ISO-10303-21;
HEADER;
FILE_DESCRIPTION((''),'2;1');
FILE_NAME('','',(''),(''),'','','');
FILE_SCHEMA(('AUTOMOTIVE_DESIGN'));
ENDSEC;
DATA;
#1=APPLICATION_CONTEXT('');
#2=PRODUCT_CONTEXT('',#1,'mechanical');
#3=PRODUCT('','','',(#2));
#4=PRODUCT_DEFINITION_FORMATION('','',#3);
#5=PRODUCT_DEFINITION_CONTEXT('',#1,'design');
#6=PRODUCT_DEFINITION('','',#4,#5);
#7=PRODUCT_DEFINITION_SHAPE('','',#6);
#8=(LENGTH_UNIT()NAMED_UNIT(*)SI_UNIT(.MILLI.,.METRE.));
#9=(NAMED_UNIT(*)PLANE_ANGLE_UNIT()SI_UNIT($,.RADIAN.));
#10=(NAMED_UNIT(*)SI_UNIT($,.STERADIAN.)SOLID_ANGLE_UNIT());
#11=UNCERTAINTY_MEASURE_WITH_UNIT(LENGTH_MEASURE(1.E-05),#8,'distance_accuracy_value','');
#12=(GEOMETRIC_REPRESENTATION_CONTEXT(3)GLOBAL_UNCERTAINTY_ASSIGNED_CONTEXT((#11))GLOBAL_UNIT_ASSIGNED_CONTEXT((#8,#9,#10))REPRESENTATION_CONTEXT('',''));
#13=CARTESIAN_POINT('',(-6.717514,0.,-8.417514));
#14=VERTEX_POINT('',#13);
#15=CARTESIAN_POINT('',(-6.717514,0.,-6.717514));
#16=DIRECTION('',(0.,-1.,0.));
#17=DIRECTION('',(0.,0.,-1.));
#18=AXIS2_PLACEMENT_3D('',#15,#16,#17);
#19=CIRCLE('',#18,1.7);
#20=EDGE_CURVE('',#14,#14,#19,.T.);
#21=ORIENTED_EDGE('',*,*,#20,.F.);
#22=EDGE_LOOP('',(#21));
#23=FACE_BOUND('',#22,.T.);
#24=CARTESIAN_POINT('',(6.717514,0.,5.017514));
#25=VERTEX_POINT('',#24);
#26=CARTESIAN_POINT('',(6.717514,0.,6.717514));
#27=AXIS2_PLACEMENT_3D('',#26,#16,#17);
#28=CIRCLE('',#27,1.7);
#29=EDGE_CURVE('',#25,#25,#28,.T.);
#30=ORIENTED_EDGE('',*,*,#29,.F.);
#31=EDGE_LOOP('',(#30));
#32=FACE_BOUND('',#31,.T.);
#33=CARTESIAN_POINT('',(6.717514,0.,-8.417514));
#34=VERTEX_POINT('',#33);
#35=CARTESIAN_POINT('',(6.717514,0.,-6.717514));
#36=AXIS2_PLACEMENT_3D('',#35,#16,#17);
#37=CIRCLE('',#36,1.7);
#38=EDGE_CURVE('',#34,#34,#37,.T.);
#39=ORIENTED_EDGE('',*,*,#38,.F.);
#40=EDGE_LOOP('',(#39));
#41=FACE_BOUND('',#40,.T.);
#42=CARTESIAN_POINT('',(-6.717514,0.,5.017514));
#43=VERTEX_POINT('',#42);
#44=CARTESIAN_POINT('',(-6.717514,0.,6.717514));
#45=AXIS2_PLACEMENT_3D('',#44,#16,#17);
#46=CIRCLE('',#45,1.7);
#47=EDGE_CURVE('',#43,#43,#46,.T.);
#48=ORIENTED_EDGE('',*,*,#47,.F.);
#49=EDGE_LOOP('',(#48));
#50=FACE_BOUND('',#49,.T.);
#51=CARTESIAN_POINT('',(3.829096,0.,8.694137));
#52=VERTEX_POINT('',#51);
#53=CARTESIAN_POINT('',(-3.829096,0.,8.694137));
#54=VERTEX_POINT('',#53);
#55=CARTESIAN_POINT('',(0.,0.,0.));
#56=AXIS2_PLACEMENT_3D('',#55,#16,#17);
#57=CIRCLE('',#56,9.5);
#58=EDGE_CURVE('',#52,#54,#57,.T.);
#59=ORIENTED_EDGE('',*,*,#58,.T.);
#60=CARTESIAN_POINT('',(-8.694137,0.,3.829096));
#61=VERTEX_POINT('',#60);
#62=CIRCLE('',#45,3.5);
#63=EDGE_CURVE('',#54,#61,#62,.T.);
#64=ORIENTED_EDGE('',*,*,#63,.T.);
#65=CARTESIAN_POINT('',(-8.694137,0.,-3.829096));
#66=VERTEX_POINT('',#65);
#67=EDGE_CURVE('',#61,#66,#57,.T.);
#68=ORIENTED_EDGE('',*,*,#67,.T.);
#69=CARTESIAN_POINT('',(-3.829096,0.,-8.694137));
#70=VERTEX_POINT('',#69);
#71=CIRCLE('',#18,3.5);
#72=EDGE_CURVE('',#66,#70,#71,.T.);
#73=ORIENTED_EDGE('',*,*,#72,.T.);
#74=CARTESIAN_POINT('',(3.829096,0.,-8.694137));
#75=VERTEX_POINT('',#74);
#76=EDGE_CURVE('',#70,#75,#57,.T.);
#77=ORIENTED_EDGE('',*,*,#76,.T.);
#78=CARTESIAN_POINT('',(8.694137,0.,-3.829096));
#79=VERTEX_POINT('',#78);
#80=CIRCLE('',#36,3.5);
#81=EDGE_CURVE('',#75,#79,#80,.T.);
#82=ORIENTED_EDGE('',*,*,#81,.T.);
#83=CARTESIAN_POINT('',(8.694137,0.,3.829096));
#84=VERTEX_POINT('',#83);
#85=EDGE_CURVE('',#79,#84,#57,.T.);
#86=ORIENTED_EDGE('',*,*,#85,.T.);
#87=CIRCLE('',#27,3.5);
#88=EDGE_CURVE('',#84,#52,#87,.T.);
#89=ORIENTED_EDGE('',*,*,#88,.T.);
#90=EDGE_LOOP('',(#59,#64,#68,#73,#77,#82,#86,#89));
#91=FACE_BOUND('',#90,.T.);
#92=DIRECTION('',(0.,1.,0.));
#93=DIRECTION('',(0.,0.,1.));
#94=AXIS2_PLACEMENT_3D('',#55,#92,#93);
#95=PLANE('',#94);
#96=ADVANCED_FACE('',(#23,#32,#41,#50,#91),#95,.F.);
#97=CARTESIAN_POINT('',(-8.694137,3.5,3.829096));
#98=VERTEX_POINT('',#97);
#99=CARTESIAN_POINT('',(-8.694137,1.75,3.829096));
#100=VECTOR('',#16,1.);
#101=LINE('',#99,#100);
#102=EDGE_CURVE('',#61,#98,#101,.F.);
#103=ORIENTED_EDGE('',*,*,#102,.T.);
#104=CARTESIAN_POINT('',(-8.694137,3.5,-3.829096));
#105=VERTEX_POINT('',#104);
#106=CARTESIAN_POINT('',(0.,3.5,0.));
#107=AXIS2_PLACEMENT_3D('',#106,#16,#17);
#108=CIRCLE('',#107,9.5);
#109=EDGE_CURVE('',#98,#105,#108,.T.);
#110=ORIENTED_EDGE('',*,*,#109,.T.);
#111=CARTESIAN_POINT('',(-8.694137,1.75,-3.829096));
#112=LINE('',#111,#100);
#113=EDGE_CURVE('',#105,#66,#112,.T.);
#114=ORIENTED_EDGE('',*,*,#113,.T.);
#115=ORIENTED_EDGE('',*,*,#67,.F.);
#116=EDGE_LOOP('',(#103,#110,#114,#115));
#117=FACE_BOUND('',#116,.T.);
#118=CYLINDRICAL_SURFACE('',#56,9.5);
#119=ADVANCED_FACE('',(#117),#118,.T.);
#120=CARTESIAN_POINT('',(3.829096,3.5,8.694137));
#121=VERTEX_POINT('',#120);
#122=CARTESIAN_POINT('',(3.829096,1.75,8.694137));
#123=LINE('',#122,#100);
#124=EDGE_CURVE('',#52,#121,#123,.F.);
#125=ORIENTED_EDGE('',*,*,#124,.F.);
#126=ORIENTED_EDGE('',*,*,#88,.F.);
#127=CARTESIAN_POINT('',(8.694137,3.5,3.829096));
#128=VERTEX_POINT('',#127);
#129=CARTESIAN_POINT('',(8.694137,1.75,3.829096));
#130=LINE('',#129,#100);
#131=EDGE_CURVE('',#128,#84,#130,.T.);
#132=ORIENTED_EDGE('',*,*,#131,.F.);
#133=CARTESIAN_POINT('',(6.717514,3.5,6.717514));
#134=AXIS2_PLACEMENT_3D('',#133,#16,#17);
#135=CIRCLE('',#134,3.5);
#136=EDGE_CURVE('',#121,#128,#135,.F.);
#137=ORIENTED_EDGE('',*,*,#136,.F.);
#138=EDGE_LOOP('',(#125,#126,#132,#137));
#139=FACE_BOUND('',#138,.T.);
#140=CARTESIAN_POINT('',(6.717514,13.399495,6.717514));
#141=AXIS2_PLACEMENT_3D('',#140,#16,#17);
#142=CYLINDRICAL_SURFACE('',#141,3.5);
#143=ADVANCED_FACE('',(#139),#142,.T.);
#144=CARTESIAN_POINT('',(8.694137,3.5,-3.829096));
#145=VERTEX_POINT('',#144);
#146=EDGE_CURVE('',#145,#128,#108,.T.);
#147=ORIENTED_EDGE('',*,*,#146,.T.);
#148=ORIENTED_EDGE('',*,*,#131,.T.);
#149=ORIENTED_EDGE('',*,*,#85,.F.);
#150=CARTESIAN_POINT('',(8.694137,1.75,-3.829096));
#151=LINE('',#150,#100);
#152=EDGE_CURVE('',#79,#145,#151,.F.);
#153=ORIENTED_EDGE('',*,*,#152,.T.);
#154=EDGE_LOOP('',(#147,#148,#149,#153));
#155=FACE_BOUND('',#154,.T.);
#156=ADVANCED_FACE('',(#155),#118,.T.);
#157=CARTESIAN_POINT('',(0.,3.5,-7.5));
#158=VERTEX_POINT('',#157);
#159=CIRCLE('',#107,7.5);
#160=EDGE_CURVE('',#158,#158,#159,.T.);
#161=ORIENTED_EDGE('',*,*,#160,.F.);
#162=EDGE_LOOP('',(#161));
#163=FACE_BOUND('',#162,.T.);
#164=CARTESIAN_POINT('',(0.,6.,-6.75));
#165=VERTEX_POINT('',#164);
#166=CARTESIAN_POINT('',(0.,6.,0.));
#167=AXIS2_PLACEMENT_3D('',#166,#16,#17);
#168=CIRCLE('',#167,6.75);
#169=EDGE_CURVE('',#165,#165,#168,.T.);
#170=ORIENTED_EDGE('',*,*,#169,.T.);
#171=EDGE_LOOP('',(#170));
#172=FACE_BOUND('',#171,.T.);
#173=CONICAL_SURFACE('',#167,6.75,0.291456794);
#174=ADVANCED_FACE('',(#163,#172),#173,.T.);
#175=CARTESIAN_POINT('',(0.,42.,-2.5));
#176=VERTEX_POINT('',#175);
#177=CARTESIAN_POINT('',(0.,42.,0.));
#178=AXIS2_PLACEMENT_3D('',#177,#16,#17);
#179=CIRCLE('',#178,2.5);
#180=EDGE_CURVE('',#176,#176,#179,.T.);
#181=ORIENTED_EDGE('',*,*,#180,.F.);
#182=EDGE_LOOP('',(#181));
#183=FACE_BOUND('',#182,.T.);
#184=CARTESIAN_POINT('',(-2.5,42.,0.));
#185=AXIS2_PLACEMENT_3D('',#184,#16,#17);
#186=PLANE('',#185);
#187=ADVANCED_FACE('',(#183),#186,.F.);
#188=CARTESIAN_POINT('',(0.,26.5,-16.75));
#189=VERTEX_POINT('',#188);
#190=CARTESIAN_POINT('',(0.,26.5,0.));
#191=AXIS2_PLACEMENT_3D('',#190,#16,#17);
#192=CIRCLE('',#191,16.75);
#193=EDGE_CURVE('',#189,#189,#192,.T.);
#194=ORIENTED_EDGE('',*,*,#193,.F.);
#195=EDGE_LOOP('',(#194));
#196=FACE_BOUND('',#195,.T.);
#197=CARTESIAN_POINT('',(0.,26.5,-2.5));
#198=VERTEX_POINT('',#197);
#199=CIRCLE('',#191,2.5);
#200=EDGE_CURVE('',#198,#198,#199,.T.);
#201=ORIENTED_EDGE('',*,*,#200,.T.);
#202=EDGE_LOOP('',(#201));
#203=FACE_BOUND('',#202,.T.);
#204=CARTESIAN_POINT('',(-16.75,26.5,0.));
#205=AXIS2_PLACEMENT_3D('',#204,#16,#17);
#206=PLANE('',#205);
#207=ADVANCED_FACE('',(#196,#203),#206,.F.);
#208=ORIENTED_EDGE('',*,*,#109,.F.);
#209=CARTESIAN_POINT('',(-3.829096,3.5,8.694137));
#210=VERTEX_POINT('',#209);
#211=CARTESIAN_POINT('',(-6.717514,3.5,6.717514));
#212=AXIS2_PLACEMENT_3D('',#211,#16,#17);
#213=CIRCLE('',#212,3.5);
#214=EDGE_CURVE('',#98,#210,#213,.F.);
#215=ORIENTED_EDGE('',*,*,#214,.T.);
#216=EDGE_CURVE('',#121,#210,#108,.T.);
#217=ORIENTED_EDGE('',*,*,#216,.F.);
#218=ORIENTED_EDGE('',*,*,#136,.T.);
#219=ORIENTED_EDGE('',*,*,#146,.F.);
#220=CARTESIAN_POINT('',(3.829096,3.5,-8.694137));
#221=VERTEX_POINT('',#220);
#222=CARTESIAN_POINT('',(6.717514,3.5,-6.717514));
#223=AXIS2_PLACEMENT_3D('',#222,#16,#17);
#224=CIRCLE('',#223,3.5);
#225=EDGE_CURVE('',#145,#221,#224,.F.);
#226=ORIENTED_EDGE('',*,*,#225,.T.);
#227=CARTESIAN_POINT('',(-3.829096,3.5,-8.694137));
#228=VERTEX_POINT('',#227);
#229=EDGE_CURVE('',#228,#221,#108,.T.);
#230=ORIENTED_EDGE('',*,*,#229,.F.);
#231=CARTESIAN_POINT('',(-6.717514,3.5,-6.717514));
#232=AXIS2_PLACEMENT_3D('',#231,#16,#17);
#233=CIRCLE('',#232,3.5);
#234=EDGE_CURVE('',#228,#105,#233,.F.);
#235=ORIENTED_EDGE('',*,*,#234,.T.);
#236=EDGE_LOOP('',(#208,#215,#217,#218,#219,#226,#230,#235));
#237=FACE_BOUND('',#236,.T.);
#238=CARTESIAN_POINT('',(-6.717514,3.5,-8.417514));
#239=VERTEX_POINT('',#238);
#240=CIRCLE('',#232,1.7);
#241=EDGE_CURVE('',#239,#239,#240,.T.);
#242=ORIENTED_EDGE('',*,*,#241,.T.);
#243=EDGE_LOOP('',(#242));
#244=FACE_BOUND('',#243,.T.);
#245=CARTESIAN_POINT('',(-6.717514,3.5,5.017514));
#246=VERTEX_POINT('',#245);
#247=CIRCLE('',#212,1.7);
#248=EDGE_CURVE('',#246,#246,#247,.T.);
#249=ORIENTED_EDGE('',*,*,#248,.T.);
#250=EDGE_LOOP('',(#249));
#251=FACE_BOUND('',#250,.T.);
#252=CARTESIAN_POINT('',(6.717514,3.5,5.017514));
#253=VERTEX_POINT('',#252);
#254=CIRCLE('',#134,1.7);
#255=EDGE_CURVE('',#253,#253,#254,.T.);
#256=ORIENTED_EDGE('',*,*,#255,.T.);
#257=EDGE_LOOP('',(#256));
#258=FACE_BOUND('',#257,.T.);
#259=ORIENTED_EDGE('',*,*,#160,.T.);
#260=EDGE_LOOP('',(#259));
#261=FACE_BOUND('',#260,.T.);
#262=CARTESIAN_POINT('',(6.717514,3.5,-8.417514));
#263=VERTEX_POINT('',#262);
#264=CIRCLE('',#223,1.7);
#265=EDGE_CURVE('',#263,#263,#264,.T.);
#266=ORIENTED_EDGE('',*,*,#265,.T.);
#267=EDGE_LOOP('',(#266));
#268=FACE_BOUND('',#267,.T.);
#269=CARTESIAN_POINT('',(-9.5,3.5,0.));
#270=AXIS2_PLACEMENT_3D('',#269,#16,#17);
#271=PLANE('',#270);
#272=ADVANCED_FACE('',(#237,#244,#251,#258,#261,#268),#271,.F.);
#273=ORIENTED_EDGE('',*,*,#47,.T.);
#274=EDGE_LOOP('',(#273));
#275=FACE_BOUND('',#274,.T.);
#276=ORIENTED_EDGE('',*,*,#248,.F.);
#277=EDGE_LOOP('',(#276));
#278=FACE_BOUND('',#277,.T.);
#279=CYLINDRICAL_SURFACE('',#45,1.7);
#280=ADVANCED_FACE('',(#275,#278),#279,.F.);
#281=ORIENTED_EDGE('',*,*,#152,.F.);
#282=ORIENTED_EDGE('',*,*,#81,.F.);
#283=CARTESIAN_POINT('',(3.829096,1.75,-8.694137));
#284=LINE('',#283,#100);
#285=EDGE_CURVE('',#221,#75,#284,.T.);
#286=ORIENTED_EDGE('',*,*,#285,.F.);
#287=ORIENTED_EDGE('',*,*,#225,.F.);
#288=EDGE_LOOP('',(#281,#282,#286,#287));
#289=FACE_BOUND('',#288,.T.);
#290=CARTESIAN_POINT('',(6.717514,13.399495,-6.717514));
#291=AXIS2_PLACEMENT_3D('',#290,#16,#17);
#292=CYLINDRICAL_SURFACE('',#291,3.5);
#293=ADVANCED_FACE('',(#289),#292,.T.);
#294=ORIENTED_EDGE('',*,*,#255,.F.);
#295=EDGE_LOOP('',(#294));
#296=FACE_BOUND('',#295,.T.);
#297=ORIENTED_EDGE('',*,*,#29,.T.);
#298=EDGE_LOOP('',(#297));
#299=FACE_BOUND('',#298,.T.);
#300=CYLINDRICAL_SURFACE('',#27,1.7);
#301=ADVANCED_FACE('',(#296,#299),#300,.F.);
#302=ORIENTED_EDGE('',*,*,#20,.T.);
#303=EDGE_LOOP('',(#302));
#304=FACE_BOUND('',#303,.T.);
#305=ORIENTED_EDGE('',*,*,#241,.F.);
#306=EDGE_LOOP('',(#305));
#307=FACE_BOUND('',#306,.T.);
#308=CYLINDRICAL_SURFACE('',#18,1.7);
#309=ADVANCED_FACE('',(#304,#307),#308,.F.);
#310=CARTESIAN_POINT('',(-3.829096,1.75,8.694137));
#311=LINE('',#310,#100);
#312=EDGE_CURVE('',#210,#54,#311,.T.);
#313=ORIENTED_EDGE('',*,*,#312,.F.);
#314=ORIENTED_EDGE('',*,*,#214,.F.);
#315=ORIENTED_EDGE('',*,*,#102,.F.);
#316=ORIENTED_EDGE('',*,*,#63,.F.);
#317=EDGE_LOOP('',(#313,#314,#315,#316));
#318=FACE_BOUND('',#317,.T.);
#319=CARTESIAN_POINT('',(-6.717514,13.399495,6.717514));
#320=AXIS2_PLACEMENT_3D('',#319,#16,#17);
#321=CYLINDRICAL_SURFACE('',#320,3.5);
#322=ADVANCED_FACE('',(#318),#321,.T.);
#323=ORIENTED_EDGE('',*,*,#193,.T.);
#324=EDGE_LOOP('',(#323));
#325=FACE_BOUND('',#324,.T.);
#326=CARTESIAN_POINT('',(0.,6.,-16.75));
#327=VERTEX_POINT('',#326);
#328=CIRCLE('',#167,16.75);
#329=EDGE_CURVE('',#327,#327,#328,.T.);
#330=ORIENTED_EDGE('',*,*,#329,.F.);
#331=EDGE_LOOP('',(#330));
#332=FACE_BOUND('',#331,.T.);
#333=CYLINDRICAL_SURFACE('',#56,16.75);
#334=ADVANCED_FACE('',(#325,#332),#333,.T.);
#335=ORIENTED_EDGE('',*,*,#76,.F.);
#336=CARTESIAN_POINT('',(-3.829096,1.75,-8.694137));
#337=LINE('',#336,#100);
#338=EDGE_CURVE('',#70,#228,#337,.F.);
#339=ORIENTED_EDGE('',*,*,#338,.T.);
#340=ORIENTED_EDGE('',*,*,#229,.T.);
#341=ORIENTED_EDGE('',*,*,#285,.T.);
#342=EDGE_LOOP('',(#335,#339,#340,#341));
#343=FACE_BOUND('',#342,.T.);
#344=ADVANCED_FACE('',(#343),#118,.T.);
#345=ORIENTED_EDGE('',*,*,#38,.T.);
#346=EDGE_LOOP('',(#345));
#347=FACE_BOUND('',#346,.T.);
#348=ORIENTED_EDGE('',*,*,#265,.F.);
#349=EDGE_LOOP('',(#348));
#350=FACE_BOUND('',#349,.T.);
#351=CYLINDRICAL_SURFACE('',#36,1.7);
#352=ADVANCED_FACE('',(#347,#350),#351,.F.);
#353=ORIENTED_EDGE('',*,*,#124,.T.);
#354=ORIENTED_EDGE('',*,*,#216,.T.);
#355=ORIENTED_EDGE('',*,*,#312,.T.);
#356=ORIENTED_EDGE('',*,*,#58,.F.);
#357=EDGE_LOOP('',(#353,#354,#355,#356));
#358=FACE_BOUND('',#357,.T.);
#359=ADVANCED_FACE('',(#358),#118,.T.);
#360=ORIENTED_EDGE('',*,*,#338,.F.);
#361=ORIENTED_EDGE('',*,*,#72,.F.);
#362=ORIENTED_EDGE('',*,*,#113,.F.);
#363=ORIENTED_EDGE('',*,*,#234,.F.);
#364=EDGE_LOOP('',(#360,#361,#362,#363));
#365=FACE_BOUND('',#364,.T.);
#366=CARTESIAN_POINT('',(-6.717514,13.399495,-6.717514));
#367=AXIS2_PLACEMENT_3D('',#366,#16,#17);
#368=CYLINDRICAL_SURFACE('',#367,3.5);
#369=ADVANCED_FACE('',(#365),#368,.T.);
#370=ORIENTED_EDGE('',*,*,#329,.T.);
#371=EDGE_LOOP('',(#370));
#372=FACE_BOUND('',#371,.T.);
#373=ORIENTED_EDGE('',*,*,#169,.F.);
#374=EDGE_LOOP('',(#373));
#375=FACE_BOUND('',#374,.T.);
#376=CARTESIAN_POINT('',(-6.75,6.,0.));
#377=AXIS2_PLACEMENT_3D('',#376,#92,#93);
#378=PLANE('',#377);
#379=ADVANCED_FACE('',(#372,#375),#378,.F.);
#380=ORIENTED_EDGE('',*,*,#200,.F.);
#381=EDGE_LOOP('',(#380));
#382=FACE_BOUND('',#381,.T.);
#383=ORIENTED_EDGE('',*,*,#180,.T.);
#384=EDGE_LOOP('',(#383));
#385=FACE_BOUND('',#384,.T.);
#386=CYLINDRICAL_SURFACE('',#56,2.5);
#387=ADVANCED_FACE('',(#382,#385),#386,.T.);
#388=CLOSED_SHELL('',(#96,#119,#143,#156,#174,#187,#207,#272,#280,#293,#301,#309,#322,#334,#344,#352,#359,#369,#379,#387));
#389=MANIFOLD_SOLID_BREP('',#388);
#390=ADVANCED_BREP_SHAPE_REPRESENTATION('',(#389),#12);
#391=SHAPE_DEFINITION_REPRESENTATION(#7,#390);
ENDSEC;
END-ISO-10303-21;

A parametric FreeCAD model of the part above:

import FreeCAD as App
import Part
import Sketcher

doc = App.newDocument("Part")
params = doc.addObject("Spreadsheet::Sheet", "Params")
for row, (alias, value) in enumerate([
    ("sketch1_width", "10 mm"),
    ("sketch1_width2", "2 mm"),
    ("sketch1_height", "42 mm"),
    ("sketch1_width3", "9.5 mm"),
    ("sketch1_width4", "2.5 mm"),
    ("revolution_angle", "360 deg"),
    ("sketch2_diameter", "7 mm"),
    ("pad1_length", "3.5 mm"),
    ("sketch3_diameter", "3.4 mm"),
    ("hole_diameter", "3.4 mm"),
    ("hole_depth", "3.5 mm"),
], start=1):
    params.set(f"A{row}", alias)
    params.set(f"B{row}", "=" + value)
    params.setAlias(f"B{row}", alias)

body = doc.addObject("PartDesign::Body", "Body")

# Sketch on XY plane
sketch1 = body.newObject("Sketcher::SketchObject", "Sketch")
sketch1.AttachmentSupport = (doc.getObject("XY_Plane"), [""])
sketch1.MapMode = "FlatFace"
sketch1.addGeometry([
    Part.LineSegment(App.Vector(-9.5, 0, 0), App.Vector(0, 0, 0)),  # 0
    Part.LineSegment(App.Vector(0, 0, 0), App.Vector(0, 42, 0)),  # 1
    Part.LineSegment(App.Vector(0, 42, 0), App.Vector(-2.5, 42, 0)),  # 2
    Part.LineSegment(App.Vector(-2.5, 42, 0), App.Vector(-2.5, 26.5, 0)),  # 3
    Part.LineSegment(App.Vector(-2.5, 26.5, 0), App.Vector(-16.8, 26.5, 0)),  # 4
    Part.LineSegment(App.Vector(-16.8, 26.5, 0), App.Vector(-16.8, 6, 0)),  # 5
    Part.LineSegment(App.Vector(-16.8, 6, 0), App.Vector(-6.8, 6, 0)),  # 6
    Part.LineSegment(App.Vector(-6.8, 6, 0), App.Vector(-7.5, 3.5, 0)),  # 7
    Part.LineSegment(App.Vector(-7.5, 3.5, 0), App.Vector(-9.5, 3.5, 0)),  # 8
    Part.LineSegment(App.Vector(-9.5, 3.5, 0), App.Vector(-9.5, 0, 0)),  # 9
], False)
sketch1.addConstraint([
    Sketcher.Constraint("Coincident", 0, 2, 1, 1),
    Sketcher.Constraint("Coincident", 1, 2, 2, 1),
    Sketcher.Constraint("Coincident", 2, 2, 3, 1),
    Sketcher.Constraint("Coincident", 3, 2, 4, 1),
    Sketcher.Constraint("Coincident", 4, 2, 5, 1),
    Sketcher.Constraint("Coincident", 5, 2, 6, 1),
    Sketcher.Constraint("Coincident", 6, 2, 7, 1),
    Sketcher.Constraint("Coincident", 7, 2, 8, 1),
    Sketcher.Constraint("Coincident", 8, 2, 9, 1),
    Sketcher.Constraint("Coincident", 9, 2, 0, 1),
    Sketcher.Constraint("Horizontal", 0),
    Sketcher.Constraint("Vertical", 1),
    Sketcher.Constraint("Horizontal", 2),
    Sketcher.Constraint("Vertical", 3),
    Sketcher.Constraint("Horizontal", 4),
    Sketcher.Constraint("Vertical", 5),
    Sketcher.Constraint("Horizontal", 6),
    Sketcher.Constraint("Horizontal", 8),
    Sketcher.Constraint("Vertical", 9),
    Sketcher.Constraint("Coincident", 0, 2, -1, 1),
    Sketcher.Constraint("DistanceX", 6, 1, 6, 2, 10.0),
    Sketcher.Constraint("DistanceX", 8, 2, 8, 1, 2.0),
    Sketcher.Constraint("DistanceY", 1, 1, 1, 2, 42.0),
    Sketcher.Constraint("DistanceX", 0, 1, 0, 2, 9.5),
    Sketcher.Constraint("DistanceX", 2, 2, 2, 1, 2.5),
    Sketcher.Constraint("DistanceY", 3, 2, 3, 1, 15.5),
    Sketcher.Constraint("DistanceY", 5, 2, 5, 1, 20.5),
    Sketcher.Constraint("DistanceY", 9, 2, 9, 1, 3.5),
    Sketcher.Constraint("DistanceX", 4, 2, 4, 1, 14.25),
])
sketch1.setExpression("Constraints[20]", "Params.sketch1_width")
sketch1.setExpression("Constraints[21]", "Params.sketch1_width2")
sketch1.setExpression("Constraints[22]", "Params.sketch1_height")
sketch1.setExpression("Constraints[23]", "Params.sketch1_width3")
sketch1.setExpression("Constraints[24]", "Params.sketch1_width4")
revolution = body.newObject("PartDesign::Revolution", "Revolution")
revolution.Profile = sketch1
revolution.ReferenceAxis = (sketch1, ["V_Axis"])
revolution.setExpression("Angle", "Params.revolution_angle")

# Sketch on XZ plane
sketch2 = body.newObject("Sketcher::SketchObject", "Sketch001")
sketch2.AttachmentSupport = (doc.getObject("XZ_Plane"), [""])
sketch2.MapMode = "FlatFace"
sketch2.addGeometry([
    Part.Circle(App.Vector(-6.7, 6.7, 0), App.Vector(0, 0, 1), 3.5),
    Part.Circle(App.Vector(6.7, 6.7, 0), App.Vector(0, 0, 1), 3.5),
    Part.Circle(App.Vector(6.7, -6.7, 0), App.Vector(0, 0, 1), 3.5),
    Part.Circle(App.Vector(-6.7, -6.7, 0), App.Vector(0, 0, 1), 3.5),
], False)
sketch2.addConstraint([
    Sketcher.Constraint("Equal", 0, 1),
    Sketcher.Constraint("Equal", 1, 2),
    Sketcher.Constraint("Equal", 2, 3),
    Sketcher.Constraint("Symmetric", 0, 3, 2, 3, -1, 1),
    Sketcher.Constraint("Symmetric", 1, 3, 3, 3, -1, 1),
    Sketcher.Constraint("Symmetric", 0, 3, 1, 3, -2),
    Sketcher.Constraint("Diameter", 0, 7.0),
    Sketcher.Constraint("DistanceX", 0, 3, 1, 3, 13.435029),
    Sketcher.Constraint("DistanceY", 2, 3, 1, 3, 13.435029),
])
sketch2.setExpression("Constraints[6]", "Params.sketch2_diameter")
pad1 = body.newObject("PartDesign::Pad", "Pad")
pad1.Profile = sketch2
pad1.setExpression("Length", "Params.pad1_length")
pad1.Reversed = True

# Sketch on XZ plane
sketch3 = body.newObject("Sketcher::SketchObject", "Sketch002")
sketch3.AttachmentSupport = (doc.getObject("XZ_Plane"), [""])
sketch3.MapMode = "FlatFace"
sketch3.addGeometry([
    Part.Circle(App.Vector(-6.7, 6.7, 0), App.Vector(0, 0, 1), 1.7),
    Part.Circle(App.Vector(6.7, 6.7, 0), App.Vector(0, 0, 1), 1.7),
    Part.Circle(App.Vector(6.7, -6.7, 0), App.Vector(0, 0, 1), 1.7),
    Part.Circle(App.Vector(-6.7, -6.7, 0), App.Vector(0, 0, 1), 1.7),
], False)
sketch3.addConstraint([
    Sketcher.Constraint("Equal", 0, 1),
    Sketcher.Constraint("Equal", 1, 2),
    Sketcher.Constraint("Equal", 2, 3),
    Sketcher.Constraint("Symmetric", 0, 3, 2, 3, -1, 1),
    Sketcher.Constraint("Symmetric", 1, 3, 3, 3, -1, 1),
    Sketcher.Constraint("Symmetric", 0, 3, 1, 3, -2),
    Sketcher.Constraint("Diameter", 0, 3.4),
    Sketcher.Constraint("DistanceX", 0, 3, 1, 3, 13.435029),
    Sketcher.Constraint("DistanceY", 2, 3, 1, 3, 13.435029),
])
sketch3.setExpression("Constraints[6]", "Params.sketch3_diameter")
doc.recompute()
hole = body.newObject("PartDesign::Hole", "Hole")
hole.Profile = sketch3
hole.ThreadType = "None"
hole.setExpression("Diameter", "Params.hole_diameter")
hole.DepthType = "Dimension"
hole.setExpression("Depth", "Params.hole_depth")
hole.DrillPoint = "Flat"

doc.recompute()
